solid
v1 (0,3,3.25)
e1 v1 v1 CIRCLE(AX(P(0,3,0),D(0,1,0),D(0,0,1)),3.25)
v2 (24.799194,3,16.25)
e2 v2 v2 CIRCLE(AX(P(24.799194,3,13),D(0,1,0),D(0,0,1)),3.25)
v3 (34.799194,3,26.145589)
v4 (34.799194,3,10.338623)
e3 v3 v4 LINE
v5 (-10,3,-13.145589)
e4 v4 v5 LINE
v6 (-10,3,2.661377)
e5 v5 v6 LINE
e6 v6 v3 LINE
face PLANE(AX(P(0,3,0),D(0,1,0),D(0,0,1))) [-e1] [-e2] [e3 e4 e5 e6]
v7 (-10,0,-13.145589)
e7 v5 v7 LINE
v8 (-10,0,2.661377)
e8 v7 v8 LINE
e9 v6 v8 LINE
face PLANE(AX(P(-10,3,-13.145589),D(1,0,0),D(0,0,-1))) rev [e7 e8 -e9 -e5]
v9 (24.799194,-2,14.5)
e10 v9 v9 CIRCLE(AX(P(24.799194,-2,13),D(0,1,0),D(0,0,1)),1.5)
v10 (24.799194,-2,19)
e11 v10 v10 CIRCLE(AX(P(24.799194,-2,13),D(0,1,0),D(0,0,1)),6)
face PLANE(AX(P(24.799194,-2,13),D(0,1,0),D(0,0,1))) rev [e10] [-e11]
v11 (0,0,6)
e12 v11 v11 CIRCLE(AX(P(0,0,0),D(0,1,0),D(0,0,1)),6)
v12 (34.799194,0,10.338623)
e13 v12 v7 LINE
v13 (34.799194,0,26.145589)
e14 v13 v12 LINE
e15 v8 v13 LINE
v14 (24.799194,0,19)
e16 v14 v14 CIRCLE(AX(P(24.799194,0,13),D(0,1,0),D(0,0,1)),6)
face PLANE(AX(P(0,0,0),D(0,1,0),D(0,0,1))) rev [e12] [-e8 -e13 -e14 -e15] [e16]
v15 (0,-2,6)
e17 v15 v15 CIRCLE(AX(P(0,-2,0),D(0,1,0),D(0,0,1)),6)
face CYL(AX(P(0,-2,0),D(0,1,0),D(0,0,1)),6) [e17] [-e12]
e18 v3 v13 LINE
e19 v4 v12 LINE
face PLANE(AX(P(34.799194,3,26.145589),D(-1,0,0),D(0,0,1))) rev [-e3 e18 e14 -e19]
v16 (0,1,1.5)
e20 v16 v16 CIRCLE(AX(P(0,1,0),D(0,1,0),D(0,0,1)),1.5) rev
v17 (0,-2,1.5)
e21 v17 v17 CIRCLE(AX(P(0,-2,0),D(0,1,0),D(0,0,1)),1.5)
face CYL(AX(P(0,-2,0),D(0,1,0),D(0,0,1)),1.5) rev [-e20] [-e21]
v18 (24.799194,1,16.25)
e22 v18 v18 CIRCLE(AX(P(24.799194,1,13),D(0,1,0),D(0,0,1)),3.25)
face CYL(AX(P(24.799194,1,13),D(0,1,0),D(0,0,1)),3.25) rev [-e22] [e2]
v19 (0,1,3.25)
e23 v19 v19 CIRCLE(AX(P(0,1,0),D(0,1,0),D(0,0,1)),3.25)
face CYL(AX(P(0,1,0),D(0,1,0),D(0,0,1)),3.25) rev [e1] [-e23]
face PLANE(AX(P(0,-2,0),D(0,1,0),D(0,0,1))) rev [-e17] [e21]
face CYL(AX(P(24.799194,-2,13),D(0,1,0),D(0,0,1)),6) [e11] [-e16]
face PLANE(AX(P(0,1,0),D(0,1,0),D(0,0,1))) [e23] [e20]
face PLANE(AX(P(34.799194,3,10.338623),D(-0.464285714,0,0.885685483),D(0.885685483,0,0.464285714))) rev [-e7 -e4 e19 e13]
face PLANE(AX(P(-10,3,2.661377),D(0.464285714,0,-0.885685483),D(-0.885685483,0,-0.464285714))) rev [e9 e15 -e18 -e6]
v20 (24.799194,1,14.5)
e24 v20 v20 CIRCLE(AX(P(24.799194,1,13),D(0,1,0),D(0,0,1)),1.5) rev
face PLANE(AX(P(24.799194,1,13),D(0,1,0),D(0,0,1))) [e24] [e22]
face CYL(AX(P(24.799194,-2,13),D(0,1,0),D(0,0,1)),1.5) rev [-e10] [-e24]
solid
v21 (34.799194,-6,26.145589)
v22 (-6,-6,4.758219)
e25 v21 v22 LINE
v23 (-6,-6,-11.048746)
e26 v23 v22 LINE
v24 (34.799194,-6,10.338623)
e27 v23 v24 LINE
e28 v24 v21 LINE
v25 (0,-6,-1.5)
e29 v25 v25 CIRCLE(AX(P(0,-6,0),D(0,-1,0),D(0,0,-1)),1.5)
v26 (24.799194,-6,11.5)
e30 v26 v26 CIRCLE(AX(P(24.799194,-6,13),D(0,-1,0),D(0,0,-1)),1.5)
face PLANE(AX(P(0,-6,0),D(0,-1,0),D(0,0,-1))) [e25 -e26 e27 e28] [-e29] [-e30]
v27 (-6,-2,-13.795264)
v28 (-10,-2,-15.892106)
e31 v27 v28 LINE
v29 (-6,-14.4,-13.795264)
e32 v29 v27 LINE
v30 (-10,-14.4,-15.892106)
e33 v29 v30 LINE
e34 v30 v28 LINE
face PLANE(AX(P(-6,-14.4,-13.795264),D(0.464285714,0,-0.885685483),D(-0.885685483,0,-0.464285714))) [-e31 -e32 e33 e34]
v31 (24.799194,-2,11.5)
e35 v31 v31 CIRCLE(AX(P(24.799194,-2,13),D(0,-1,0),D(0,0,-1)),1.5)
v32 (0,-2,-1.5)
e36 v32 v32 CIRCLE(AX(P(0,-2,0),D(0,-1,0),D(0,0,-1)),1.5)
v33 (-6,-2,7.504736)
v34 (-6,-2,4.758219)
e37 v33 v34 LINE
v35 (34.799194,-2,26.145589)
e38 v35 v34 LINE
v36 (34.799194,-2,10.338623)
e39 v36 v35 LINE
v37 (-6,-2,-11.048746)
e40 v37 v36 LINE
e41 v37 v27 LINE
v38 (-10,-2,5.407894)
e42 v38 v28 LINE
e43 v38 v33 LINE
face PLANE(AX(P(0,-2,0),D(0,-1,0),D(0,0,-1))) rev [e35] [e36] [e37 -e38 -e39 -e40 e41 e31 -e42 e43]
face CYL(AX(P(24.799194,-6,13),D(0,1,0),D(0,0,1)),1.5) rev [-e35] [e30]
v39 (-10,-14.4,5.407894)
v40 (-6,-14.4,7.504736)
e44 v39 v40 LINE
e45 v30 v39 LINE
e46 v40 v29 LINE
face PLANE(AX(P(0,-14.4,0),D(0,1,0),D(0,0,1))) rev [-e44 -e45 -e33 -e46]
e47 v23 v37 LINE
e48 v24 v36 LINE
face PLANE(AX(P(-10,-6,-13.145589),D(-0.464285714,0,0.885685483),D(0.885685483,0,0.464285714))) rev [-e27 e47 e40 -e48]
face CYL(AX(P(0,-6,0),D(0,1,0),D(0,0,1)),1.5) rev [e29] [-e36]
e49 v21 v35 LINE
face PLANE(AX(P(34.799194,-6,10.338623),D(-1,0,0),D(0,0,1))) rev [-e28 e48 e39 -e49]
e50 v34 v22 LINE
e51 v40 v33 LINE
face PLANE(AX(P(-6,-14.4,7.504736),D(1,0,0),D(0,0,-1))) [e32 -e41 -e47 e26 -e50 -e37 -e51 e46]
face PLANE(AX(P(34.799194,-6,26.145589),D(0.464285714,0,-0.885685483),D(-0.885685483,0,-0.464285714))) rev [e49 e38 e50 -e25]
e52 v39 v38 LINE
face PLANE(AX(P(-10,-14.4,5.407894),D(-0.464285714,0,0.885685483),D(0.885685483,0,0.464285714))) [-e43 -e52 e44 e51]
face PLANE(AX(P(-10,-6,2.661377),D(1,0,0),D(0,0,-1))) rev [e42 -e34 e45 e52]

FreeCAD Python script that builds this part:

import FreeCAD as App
import Part
import Sketcher
from FreeCAD import Vector
Q = App.Units.Quantity


def add_polygon(sketch, points):
    """Adds a closed chain of lines whose ends are joined by coincident constraints."""
    first, n = sketch.GeometryCount, len(points)
    for a, b in zip(points, points[1:] + points[:1]):
        sketch.addGeometry(Part.LineSegment(App.Vector(*a, 0), App.Vector(*b, 0)), False)
    for i in range(n):
        sketch.addConstraint(Sketcher.Constraint("Coincident", first + i, 2, first + (i + 1) % n, 1))

doc = App.newDocument("Part")
params = doc.addObject("Spreadsheet::Sheet", "Params")
for row, (alias, value) in enumerate([
    ("pad1_length", "3 mm"),
    ("sketch2_diameter", "12 mm"),
    ("pad2_length", "2 mm"),
    ("sketch3_diameter", "3 mm"),
    ("sketch4_diameter", "6.5 mm"),
    ("pocket2_length", "2 mm"),
    ("sketch5_diameter", "3 mm"),
    ("pad3_length", "4 mm"),
    ("sketch6_height", "21.3 mm"),
    ("pad4_length", "12.4 mm"),
], start=1):
    params.set(f"A{row}", alias)
    params.set(f"B{row}", "=" + value)
    params.setAlias(f"B{row}", alias)

body = doc.addObject("PartDesign::Body", "Body")

# Sketch on XZ plane
sketch1 = body.newObject("Sketcher::SketchObject", "Sketch")
sketch1.AttachmentSupport = (doc.getObject("XZ_Plane"), [""])
sketch1.MapMode = "FlatFace"
add_polygon(sketch1, [(-10, -13.145589), (-10, 2.661377), (34.799194, 26.145589), (34.799194, 10.338623)])  # lines 0-3
sketch1.addConstraint([
    Sketcher.Constraint("Vertical", 0),
    Sketcher.Constraint("Vertical", 2),
    Sketcher.Constraint("Parallel", 1, 3),
    Sketcher.Constraint("DistanceX", 0, 2, -1, 1, Q("10 mm")),
    Sketcher.Constraint("Distance", 1, Q("50.581379 mm")),
    Sketcher.Constraint("DistanceY", 0, 1, 0, 2, Q("15.806966 mm")),
    Sketcher.Constraint("DistanceY", -1, 1, 1, 2, Q("26.145589 mm")),
    Sketcher.Constraint("DistanceY", 3, 2, -1, 1, Q("13.145589 mm")),
])
pad1 = body.newObject("PartDesign::Pad", "Pad")
pad1.Profile = sketch1
pad1.setExpression("Length", "Params.pad1_length")
pad1.Reversed = True

# Sketch on XZ plane
sketch2 = body.newObject("Sketcher::SketchObject", "Sketch001")
sketch2.AttachmentSupport = (doc.getObject("XZ_Plane"), [""])
sketch2.MapMode = "FlatFace"
sketch2.addGeometry([
    Part.Circle(Vector(0, 0, 0), Vector(0, 0, 1), 6),
    Part.Circle(Vector(24.799194, 13, 0), Vector(0, 0, 1), 6),
], False)
sketch2.addConstraint([
    Sketcher.Constraint("Coincident", 0, 3, -1, 1),
    Sketcher.Constraint("Equal", 0, 1),
    Sketcher.Constraint("Diameter", 0, Q("12 mm")),
    Sketcher.Constraint("DistanceY", -1, 1, 1, 3, Q("13 mm")),
    Sketcher.Constraint("DistanceX", -1, 1, 1, 3, Q("24.799194 mm")),
])
sketch2.setExpression("Constraints[2]", "Params.sketch2_diameter")
pad2 = body.newObject("PartDesign::Pad", "Pad001")
pad2.Profile = sketch2
pad2.setExpression("Length", "Params.pad2_length")

# Sketch on XZ plane
sketch3 = body.newObject("Sketcher::SketchObject", "Sketch002")
sketch3.AttachmentSupport = (doc.getObject("XZ_Plane"), [""])
sketch3.MapMode = "FlatFace"
sketch3.AttachmentOffset = App.Placement(Vector(0, 0, -3), App.Rotation())
sketch3.addGeometry([
    Part.Circle(Vector(0, 0, 0), Vector(0, 0, 1), 1.5),
    Part.Circle(Vector(24.799194, 13, 0), Vector(0, 0, 1), 1.5),
], False)
sketch3.addConstraint([
    Sketcher.Constraint("Coincident", 0, 3, -1, 1),
    Sketcher.Constraint("Equal", 0, 1),
    Sketcher.Constraint("Diameter", 0, Q("3 mm")),
    Sketcher.Constraint("DistanceY", -1, 1, 1, 3, Q("13 mm")),
    Sketcher.Constraint("DistanceX", -1, 1, 1, 3, Q("24.799194 mm")),
])
sketch3.setExpression("Constraints[2]", "Params.sketch3_diameter")
pocket1 = body.newObject("PartDesign::Pocket", "Pocket")
pocket1.Profile = sketch3
pocket1.Type = "ThroughAll"
pocket1.Reversed = True

# Sketch on XZ plane
sketch4 = body.newObject("Sketcher::SketchObject", "Sketch003")
sketch4.AttachmentSupport = (doc.getObject("XZ_Plane"), [""])
sketch4.MapMode = "FlatFace"
sketch4.AttachmentOffset = App.Placement(Vector(0, 0, -3), App.Rotation())
sketch4.addGeometry([
    Part.Circle(Vector(0, 0, 0), Vector(0, 0, 1), 3.25),
    Part.Circle(Vector(24.799194, 13, 0), Vector(0, 0, 1), 3.25),
], False)
sketch4.addConstraint([
    Sketcher.Constraint("Coincident", 0, 3, -1, 1),
    Sketcher.Constraint("Equal", 0, 1),
    Sketcher.Constraint("Diameter", 0, Q("6.5 mm")),
    Sketcher.Constraint("DistanceY", -1, 1, 1, 3, Q("13 mm")),
    Sketcher.Constraint("DistanceX", -1, 1, 1, 3, Q("24.799194 mm")),
])
sketch4.setExpression("Constraints[2]", "Params.sketch4_diameter")
pocket2 = body.newObject("PartDesign::Pocket", "Pocket001")
pocket2.Profile = sketch4
pocket2.setExpression("Length", "Params.pocket2_length")
pocket2.Reversed = True
body2 = doc.addObject("PartDesign::Body", "Body001")

# Sketch on XZ plane
sketch5 = body2.newObject("Sketcher::SketchObject", "Sketch004")
sketch5.AttachmentSupport = (doc.getObject("XZ_Plane001"), [""])
sketch5.MapMode = "FlatFace"
sketch5.AttachmentOffset = App.Placement(Vector(0, 0, 2), App.Rotation())
add_polygon(sketch5, [(-10, 2.661377), (-10, -13.145589), (34.799194, 10.338623), (34.799194, 26.145589)])  # lines 0-3
sketch5.addGeometry(Part.Circle(Vector(0, 0, 0), Vector(0, 0, 1), 1.5), False)  # 4
sketch5.addGeometry(Part.Circle(Vector(24.799194, 13, 0), Vector(0, 0, 1), 1.5), False)  # 5
sketch5.addConstraint([
    Sketcher.Constraint("Vertical", 0),
    Sketcher.Constraint("Vertical", 2),
    Sketcher.Constraint("Coincident", 4, 3, -1, 1),
    Sketcher.Constraint("Equal", 4, 5),
    Sketcher.Constraint("Parallel", 1, 3),
    Sketcher.Constraint("Diameter", 4, Q("3 mm")),
    Sketcher.Constraint("DistanceY", -1, 1, 5, 3, Q("13 mm")),
    Sketcher.Constraint("DistanceX", 0, 2, -1, 1, Q("10 mm")),
    Sketcher.Constraint("DistanceX", 5, 3, 1, 2, Q("10 mm")),
    Sketcher.Constraint("Distance", 1, Q("50.581379 mm")),
    Sketcher.Constraint("DistanceY", 0, 2, 0, 1, Q("15.806966 mm")),
    Sketcher.Constraint("DistanceY", 0, 2, -1, 1, Q("13.145589 mm")),
    Sketcher.Constraint("DistanceY", -1, 1, 2, 2, Q("26.145589 mm")),
])
sketch5.setExpression("Constraints[9]", "Params.sketch5_diameter")
pad3 = body2.newObject("PartDesign::Pad", "Pad002")
pad3.Profile = sketch5
pad3.setExpression("Length", "Params.pad3_length")

# Sketch on XZ plane
sketch6 = body2.newObject("Sketcher::SketchObject", "Sketch005")
sketch6.AttachmentSupport = (doc.getObject("XZ_Plane001"), [""])
sketch6.MapMode = "FlatFace"
sketch6.AttachmentOffset = App.Placement(Vector(0, 0, 2), App.Rotation())
add_polygon(sketch6, [(-10, -15.892106), (-10, 5.407894), (-6, 7.504736), (-6, -13.795264)])  # lines 0-3
sketch6.addConstraint([
    Sketcher.Constraint("Vertical", 0),
    Sketcher.Constraint("Vertical", 2),
    Sketcher.Constraint("Parallel", 1, 3),
    Sketcher.Constraint("DistanceY", 0, 1, 0, 2, Q("21.3 mm")),
    Sketcher.Constraint("DistanceX", 0, 2, -1, 1, Q("10 mm")),
    Sketcher.Constraint("DistanceX", 1, 2, -1, 1, Q("6 mm")),
    Sketcher.Constraint("Distance", 1, Q("4.516276 mm")),
    Sketcher.Constraint("DistanceY", -1, 1, 0, 2, Q("5.407894 mm")),
])
sketch6.setExpression("Constraints[7]", "Params.sketch6_height")
pad4 = body2.newObject("PartDesign::Pad", "Pad003")
pad4.Profile = sketch6
pad4.setExpression("Length", "Params.pad4_length")

doc.recompute()
